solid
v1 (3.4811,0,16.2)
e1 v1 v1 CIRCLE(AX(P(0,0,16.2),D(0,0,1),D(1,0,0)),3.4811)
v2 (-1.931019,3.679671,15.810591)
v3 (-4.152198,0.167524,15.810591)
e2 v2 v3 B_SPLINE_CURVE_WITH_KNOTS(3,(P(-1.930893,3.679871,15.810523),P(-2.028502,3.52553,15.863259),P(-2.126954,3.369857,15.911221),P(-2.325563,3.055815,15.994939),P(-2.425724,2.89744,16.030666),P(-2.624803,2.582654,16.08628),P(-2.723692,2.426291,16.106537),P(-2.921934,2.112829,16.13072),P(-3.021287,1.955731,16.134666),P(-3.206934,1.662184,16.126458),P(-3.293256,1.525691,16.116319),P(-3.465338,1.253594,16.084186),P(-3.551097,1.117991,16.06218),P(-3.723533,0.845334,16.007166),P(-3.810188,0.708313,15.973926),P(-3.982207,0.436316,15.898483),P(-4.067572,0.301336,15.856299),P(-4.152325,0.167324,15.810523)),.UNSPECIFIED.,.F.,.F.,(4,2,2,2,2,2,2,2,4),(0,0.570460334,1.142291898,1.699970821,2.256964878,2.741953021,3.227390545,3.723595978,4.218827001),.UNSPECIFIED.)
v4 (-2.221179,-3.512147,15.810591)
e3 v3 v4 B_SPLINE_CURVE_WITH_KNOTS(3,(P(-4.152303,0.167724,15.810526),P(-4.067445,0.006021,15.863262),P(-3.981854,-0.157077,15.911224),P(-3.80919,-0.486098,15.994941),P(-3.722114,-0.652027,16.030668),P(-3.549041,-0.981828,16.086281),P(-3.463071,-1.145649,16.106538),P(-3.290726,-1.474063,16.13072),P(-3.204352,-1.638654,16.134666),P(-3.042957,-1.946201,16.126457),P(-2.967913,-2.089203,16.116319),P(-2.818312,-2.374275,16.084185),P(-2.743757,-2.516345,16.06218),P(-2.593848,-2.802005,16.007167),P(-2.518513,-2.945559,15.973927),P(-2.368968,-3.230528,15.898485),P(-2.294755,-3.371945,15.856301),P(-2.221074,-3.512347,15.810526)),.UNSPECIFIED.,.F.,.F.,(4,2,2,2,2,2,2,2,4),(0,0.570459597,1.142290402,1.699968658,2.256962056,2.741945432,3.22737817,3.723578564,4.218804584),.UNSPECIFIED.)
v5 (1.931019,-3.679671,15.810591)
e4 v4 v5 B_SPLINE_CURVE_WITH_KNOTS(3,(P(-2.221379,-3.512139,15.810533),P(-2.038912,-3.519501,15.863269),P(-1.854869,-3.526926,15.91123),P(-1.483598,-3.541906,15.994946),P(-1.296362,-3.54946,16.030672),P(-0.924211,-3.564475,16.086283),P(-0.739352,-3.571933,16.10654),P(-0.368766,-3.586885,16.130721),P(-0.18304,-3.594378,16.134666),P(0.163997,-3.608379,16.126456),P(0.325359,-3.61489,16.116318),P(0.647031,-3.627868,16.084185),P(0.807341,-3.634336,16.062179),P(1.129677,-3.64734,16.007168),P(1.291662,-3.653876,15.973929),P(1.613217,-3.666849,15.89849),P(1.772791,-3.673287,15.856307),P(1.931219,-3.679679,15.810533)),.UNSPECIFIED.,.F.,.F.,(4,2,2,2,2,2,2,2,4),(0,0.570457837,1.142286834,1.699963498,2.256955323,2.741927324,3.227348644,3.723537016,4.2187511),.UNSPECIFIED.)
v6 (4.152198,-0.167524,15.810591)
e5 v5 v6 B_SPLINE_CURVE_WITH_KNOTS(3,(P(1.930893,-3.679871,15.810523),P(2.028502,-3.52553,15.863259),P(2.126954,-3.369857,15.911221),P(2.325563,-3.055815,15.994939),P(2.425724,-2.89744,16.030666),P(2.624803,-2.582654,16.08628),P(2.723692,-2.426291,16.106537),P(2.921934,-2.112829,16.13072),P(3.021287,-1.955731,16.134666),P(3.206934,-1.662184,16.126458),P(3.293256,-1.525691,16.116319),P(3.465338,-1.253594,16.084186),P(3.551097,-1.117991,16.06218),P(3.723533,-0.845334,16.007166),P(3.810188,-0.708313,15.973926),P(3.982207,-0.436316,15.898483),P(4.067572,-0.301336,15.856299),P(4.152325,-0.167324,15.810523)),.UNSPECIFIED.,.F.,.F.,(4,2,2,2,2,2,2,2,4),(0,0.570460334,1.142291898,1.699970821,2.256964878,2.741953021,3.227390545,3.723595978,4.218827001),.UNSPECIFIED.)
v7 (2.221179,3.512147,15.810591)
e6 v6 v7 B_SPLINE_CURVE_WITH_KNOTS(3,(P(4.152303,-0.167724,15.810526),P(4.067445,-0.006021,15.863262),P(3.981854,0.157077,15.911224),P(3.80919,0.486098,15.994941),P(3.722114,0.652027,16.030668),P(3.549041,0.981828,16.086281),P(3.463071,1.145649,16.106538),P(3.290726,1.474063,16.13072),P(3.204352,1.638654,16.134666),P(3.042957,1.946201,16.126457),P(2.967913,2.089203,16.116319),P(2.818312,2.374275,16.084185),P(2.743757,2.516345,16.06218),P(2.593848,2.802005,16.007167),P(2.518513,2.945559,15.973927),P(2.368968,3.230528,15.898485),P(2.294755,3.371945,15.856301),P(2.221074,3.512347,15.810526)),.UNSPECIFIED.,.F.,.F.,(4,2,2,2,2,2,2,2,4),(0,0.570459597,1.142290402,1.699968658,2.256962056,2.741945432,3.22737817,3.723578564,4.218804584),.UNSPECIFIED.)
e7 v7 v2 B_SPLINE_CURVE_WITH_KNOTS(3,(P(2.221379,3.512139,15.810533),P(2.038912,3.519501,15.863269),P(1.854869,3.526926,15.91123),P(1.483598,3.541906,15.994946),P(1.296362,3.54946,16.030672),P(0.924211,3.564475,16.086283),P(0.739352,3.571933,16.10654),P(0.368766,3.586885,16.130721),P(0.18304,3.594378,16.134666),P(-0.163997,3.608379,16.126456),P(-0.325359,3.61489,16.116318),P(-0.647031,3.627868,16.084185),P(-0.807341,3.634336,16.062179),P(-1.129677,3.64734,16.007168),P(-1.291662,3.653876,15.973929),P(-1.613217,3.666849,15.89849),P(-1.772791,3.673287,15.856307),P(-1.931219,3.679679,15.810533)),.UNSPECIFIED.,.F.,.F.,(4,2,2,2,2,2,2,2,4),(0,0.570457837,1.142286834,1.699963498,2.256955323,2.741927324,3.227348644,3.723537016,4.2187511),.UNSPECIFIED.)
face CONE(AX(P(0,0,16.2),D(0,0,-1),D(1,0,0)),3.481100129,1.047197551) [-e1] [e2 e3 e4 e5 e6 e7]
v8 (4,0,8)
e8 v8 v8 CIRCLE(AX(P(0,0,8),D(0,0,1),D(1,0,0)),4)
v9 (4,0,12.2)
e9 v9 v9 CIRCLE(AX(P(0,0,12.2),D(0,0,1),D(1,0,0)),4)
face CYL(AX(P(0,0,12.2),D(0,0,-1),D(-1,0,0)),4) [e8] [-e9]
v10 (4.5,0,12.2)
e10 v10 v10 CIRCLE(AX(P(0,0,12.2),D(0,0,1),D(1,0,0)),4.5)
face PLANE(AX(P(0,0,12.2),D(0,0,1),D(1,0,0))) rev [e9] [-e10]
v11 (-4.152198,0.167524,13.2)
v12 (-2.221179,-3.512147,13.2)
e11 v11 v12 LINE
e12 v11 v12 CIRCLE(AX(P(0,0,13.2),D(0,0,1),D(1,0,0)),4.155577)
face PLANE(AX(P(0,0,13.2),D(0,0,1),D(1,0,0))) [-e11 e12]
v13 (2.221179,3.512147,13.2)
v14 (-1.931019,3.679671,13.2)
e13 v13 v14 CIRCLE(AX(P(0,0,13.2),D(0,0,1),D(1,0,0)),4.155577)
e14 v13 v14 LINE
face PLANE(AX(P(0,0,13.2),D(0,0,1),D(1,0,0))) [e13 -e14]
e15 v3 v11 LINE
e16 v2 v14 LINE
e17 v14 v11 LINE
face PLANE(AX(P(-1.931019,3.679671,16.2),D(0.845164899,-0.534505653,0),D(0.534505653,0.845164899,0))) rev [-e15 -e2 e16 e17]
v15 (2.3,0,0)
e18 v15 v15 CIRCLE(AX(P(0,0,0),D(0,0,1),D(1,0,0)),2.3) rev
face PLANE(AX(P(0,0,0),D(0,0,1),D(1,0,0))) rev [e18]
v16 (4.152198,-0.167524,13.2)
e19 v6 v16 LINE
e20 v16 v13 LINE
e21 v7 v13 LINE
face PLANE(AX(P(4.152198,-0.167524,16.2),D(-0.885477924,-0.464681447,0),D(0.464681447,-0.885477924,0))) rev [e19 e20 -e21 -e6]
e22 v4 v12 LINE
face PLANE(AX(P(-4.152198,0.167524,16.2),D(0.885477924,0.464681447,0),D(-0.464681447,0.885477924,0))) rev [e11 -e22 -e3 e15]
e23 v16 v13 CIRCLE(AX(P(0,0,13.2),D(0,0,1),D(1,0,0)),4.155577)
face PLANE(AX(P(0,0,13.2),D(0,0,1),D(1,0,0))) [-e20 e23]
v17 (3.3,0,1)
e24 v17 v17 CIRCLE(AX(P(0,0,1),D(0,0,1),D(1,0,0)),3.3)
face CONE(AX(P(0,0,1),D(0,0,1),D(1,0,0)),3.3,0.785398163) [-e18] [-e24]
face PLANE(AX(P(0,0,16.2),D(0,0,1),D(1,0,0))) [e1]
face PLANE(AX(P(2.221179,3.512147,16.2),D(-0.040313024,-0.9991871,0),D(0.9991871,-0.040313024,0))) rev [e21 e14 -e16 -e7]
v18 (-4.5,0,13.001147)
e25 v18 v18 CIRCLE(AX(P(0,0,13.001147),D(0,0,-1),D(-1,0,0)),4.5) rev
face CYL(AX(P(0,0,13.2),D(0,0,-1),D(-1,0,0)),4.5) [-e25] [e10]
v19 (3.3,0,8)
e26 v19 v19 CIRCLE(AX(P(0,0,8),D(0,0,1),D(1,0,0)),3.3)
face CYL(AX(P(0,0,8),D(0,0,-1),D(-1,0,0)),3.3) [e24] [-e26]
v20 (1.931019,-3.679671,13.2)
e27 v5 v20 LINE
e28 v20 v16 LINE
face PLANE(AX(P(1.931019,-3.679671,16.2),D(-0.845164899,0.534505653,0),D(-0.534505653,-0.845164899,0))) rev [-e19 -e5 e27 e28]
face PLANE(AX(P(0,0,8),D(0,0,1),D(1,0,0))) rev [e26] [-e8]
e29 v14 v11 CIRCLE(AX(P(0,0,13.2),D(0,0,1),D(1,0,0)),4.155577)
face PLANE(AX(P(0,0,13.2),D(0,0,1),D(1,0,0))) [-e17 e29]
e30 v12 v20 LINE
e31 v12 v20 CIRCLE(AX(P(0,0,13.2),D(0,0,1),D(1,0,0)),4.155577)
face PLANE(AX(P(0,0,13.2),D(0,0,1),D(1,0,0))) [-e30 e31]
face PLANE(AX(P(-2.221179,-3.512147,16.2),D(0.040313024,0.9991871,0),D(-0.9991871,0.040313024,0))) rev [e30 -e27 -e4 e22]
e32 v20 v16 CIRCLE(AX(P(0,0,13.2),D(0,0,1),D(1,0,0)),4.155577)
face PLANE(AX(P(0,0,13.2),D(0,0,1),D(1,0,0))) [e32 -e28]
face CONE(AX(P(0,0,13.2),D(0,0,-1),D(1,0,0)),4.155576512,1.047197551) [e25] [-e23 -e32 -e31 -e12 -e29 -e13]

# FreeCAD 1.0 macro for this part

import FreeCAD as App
import Part
import Sketcher
Q = App.Units.Quantity


def edges_at(feature, points):
    """Names of the edges that pass closest to the given points."""
    edges = feature.Shape.Edges
    near = lambda p: min(range(len(edges)), key=lambda i: edges[i].distToShape(Part.Vertex(*p))[0])
    return sorted({f"Edge{near(p) + 1}" for p in points})


def faces_at(feature, points):
    """Names of the faces that lie closest to the given points."""
    faces = feature.Shape.Faces
    near = lambda p: min(range(len(faces)), key=lambda i: faces[i].distToShape(Part.Vertex(*p))[0])
    return sorted({f"Face{near(p) + 1}" for p in points})


def add_polygon(sketch, points):
    """Adds a closed chain of lines whose ends are joined by coincident constraints."""
    first, n = sketch.GeometryCount, len(points)
    for a, b in zip(points, points[1:] + points[:1]):
        sketch.addGeometry(Part.LineSegment(App.Vector(*a, 0), App.Vector(*b, 0)), False)
    for i in range(n):
        sketch.addConstraint(Sketcher.Constraint("Coincident", first + i, 2, first + (i + 1) % n, 1))

doc = App.newDocument("Part")
body = doc.addObject("PartDesign::Body", "Body")

# Sketch on XY plane
sketch1 = body.newObject("Sketcher::SketchObject", "Sketch")
sketch1.AttachmentSupport = (doc.getObject("XY_Plane"), [""])
sketch1.MapMode = "FlatFace"
sketch1.addGeometry(Part.Circle(App.Vector(0, 0, 0), App.Vector(0, 0, 1), 3.3), False)
sketch1.addConstraint(Sketcher.Constraint("Coincident", 0, 3, -1, 1))
sketch1.addConstraint(Sketcher.Constraint("Diameter", 0, Q("6.6 mm")))
pad1 = body.newObject("PartDesign::Pad", "Pad")
pad1.Profile = sketch1
pad1.Length = 8

# Sketch on XY plane
sketch2 = body.newObject("Sketcher::SketchObject", "Sketch001")
sketch2.AttachmentSupport = (doc.getObject("XY_Plane"), [""])
sketch2.MapMode = "FlatFace"
sketch2.AttachmentOffset = App.Placement(App.Vector(0, 0, 8), App.Rotation())
sketch2.addGeometry(Part.Circle(App.Vector(0, 0, 0), App.Vector(0, 0, 1), 4), False)
sketch2.addConstraint(Sketcher.Constraint("Coincident", 0, 3, -1, 1))
sketch2.addConstraint(Sketcher.Constraint("Diameter", 0, Q("8 mm")))
pad2 = body.newObject("PartDesign::Pad", "Pad001")
pad2.Profile = sketch2
pad2.Length = 4.2

# Sketch on XY plane
sketch3 = body.newObject("Sketcher::SketchObject", "Sketch002")
sketch3.AttachmentSupport = (doc.getObject("XY_Plane"), [""])
sketch3.MapMode = "FlatFace"
sketch3.AttachmentOffset = App.Placement(App.Vector(0, 0, 12.2), App.Rotation())
sketch3.addGeometry(Part.Circle(App.Vector(0, 0, 0), App.Vector(0, 0, 1), 4.5), False)
sketch3.addConstraint(Sketcher.Constraint("Coincident", 0, 3, -1, 1))
sketch3.addConstraint(Sketcher.Constraint("Diameter", 0, Q("9 mm")))
pad3 = body.newObject("PartDesign::Pad", "Pad002")
pad3.Profile = sketch3
pad3.Length = 1
body2 = doc.addObject("PartDesign::Body", "Body001")

# Sketch on XY plane
sketch4 = body2.newObject("Sketcher::SketchObject", "Sketch003")
sketch4.AttachmentSupport = (doc.getObject("XY_Plane001"), [""])
sketch4.MapMode = "FlatFace"
sketch4.AttachmentOffset = App.Placement(App.Vector(0, 0, 13.2), App.Rotation())
add_polygon(sketch4, [(-9.1, 9.1), (-9.1, -9.1), (9.1, -9.1), (9.1, 9.1)])  # lines 0-3
sketch4.addGeometry(Part.Circle(App.Vector(0, 0, 0), App.Vector(0, 0, 1), 4.2), False)  # 4
sketch4.addConstraint(Sketcher.Constraint("Vertical", 0))
sketch4.addConstraint(Sketcher.Constraint("Horizontal", 1))
sketch4.addConstraint(Sketcher.Constraint("Vertical", 2))
sketch4.addConstraint(Sketcher.Constraint("Horizontal", 3))
sketch4.addConstraint(Sketcher.Constraint("Coincident", 4, 3, -1, 1))
sketch4.addConstraint(Sketcher.Constraint("Symmetric", 0, 2, 2, 2, -1, 1))
sketch4.addConstraint(Sketcher.Constraint("Equal", 3, 0))
sketch4.addConstraint(Sketcher.Constraint("DistanceX", 1, 1, 1, 2, Q("18.132 mm")))
sketch4.addConstraint(Sketcher.Constraint("Diameter", 4, Q("8.311153 mm")))
pad4 = body2.newObject("PartDesign::Pad", "Pad003")
pad4.Profile = sketch4
pad4.Length = 1
pad4.Reversed = True
doc.recompute()

datumplane = body2.newObject("PartDesign::Plane", "DatumPlane")
datumplane.AttachmentSupport = (doc.getObject("XY_Plane001"), [""])
datumplane.MapMode = "FlatFace"
datumplane.AttachmentOffset = App.Placement(App.Vector(0, 0, 13.2), App.Rotation())
draft = body2.newObject("PartDesign::Draft", "Draft")
draft.Base = (pad4, faces_at(pad4, [
    (0, -9.066, 12.7),
    (9.066, 0, 12.7),
    (0, 9.066, 12.7),
    (-9.066, 0, 12.7),
    (-4.156, 0, 12.7),
]))
draft.NeutralPlane = (datumplane, [""])
draft.Angle = 60
draft.Reversed = True
doc.recompute()

boolean = body.newObject("PartDesign::Boolean", "Boolean")
boolean.Type = "Cut"
boolean.addObjects([body2])

# Sketch on XY plane
sketch5 = body.newObject("Sketcher::SketchObject", "Sketch004")
sketch5.AttachmentSupport = (doc.getObject("XY_Plane"), [""])
sketch5.MapMode = "FlatFace"
sketch5.AttachmentOffset = App.Placement(App.Vector(0, 0, 13.2), App.Rotation())
add_polygon(sketch5, [(-4.2, 0.2), (-2.2, -3.5), (1.9, -3.7), (4.2, -0.2), (2.2, 3.5), (-1.9, 3.7)])  # lines 0-5
sketch5.addConstraint(Sketcher.Constraint("Symmetric", 0, 2, 3, 2, -1, 1))
sketch5.addConstraint(Sketcher.Constraint("Symmetric", 1, 2, 4, 2, -1, 1))
sketch5.addConstraint(Sketcher.Constraint("Symmetric", 2, 2, 5, 2, -1, 1))
sketch5.addConstraint(Sketcher.Constraint("Equal", 0, 1))
sketch5.addConstraint(Sketcher.Constraint("Equal", 1, 2))
sketch5.addConstraint(Sketcher.Constraint("DistanceX", -1, 1, 2, 2, Q("4.152198 mm")))
sketch5.addConstraint(Sketcher.Constraint("DistanceX", 0, 2, 1, 2, Q("4.152198 mm")))
sketch5.addConstraint(Sketcher.Constraint("DistanceX", 0, 2, -1, 1, Q("2.221179 mm")))
sketch5.addConstraint(Sketcher.Constraint("DistanceY", 1, 2, -1, 1, Q("3.679671 mm")))
pad5 = body.newObject("PartDesign::Pad", "Pad004")
pad5.Profile = sketch5
pad5.Length = 3
body3 = doc.addObject("PartDesign::Body", "Body002")

# Sketch on XY plane
sketch6 = body3.newObject("Sketcher::SketchObject", "Sketch005")
sketch6.AttachmentSupport = (doc.getObject("XY_Plane002"), [""])
sketch6.MapMode = "FlatFace"
sketch6.AttachmentOffset = App.Placement(App.Vector(0, 0, 16.2), App.Rotation())
add_polygon(sketch6, [(-12.8, 12.8), (-12.8, -12.8), (12.8, -12.8), (12.8, 12.8)])  # lines 0-3
sketch6.addGeometry(Part.Circle(App.Vector(0, 0, 0), App.Vector(0, 0, 1), 3.5), False)  # 4
sketch6.addConstraint(Sketcher.Constraint("Vertical", 0))
sketch6.addConstraint(Sketcher.Constraint("Horizontal", 1))
sketch6.addConstraint(Sketcher.Constraint("Vertical", 2))
sketch6.addConstraint(Sketcher.Constraint("Horizontal", 3))
sketch6.addConstraint(Sketcher.Constraint("Coincident", 4, 3, -1, 1))
sketch6.addConstraint(Sketcher.Constraint("Symmetric", 0, 2, 2, 2, -1, 1))
sketch6.addConstraint(Sketcher.Constraint("Equal", 3, 0))
sketch6.addConstraint(Sketcher.Constraint("Diameter", 4, Q("6.9622 mm")))
sketch6.addConstraint(Sketcher.Constraint("DistanceX", 1, 1, 1, 2, Q("25.512 mm")))
pad6 = body3.newObject("PartDesign::Pad", "Pad005")
pad6.Profile = sketch6
pad6.Length = 3
pad6.Reversed = True
doc.recompute()

datumplane2 = body3.newObject("PartDesign::Plane", "DatumPlane001")
datumplane2.AttachmentSupport = (doc.getObject("XY_Plane002"), [""])
datumplane2.MapMode = "FlatFace"
datumplane2.AttachmentOffset = App.Placement(App.Vector(0, 0, 16.2), App.Rotation())
draft2 = body3.newObject("PartDesign::Draft", "Draft001")
draft2.Base = (pad6, faces_at(pad6, [
    (0, -12.756, 14.7),
    (12.756, 0, 14.7),
    (0, 12.756, 14.7),
    (-12.756, 0, 14.7),
    (-3.481, 0, 14.7),
]))
draft2.NeutralPlane = (datumplane2, [""])
draft2.Angle = 60
draft2.Reversed = True
doc.recompute()

boolean2 = body.newObject("PartDesign::Boolean", "Boolean001")
boolean2.Type = "Cut"
boolean2.addObjects([body3])
doc.recompute()

chamfer = body.newObject("PartDesign::Chamfer", "Chamfer")
chamfer.Base = (boolean2, edges_at(boolean2, [(-3.3, 0, 0)]))
chamfer.Size = 1

doc.recompute()
